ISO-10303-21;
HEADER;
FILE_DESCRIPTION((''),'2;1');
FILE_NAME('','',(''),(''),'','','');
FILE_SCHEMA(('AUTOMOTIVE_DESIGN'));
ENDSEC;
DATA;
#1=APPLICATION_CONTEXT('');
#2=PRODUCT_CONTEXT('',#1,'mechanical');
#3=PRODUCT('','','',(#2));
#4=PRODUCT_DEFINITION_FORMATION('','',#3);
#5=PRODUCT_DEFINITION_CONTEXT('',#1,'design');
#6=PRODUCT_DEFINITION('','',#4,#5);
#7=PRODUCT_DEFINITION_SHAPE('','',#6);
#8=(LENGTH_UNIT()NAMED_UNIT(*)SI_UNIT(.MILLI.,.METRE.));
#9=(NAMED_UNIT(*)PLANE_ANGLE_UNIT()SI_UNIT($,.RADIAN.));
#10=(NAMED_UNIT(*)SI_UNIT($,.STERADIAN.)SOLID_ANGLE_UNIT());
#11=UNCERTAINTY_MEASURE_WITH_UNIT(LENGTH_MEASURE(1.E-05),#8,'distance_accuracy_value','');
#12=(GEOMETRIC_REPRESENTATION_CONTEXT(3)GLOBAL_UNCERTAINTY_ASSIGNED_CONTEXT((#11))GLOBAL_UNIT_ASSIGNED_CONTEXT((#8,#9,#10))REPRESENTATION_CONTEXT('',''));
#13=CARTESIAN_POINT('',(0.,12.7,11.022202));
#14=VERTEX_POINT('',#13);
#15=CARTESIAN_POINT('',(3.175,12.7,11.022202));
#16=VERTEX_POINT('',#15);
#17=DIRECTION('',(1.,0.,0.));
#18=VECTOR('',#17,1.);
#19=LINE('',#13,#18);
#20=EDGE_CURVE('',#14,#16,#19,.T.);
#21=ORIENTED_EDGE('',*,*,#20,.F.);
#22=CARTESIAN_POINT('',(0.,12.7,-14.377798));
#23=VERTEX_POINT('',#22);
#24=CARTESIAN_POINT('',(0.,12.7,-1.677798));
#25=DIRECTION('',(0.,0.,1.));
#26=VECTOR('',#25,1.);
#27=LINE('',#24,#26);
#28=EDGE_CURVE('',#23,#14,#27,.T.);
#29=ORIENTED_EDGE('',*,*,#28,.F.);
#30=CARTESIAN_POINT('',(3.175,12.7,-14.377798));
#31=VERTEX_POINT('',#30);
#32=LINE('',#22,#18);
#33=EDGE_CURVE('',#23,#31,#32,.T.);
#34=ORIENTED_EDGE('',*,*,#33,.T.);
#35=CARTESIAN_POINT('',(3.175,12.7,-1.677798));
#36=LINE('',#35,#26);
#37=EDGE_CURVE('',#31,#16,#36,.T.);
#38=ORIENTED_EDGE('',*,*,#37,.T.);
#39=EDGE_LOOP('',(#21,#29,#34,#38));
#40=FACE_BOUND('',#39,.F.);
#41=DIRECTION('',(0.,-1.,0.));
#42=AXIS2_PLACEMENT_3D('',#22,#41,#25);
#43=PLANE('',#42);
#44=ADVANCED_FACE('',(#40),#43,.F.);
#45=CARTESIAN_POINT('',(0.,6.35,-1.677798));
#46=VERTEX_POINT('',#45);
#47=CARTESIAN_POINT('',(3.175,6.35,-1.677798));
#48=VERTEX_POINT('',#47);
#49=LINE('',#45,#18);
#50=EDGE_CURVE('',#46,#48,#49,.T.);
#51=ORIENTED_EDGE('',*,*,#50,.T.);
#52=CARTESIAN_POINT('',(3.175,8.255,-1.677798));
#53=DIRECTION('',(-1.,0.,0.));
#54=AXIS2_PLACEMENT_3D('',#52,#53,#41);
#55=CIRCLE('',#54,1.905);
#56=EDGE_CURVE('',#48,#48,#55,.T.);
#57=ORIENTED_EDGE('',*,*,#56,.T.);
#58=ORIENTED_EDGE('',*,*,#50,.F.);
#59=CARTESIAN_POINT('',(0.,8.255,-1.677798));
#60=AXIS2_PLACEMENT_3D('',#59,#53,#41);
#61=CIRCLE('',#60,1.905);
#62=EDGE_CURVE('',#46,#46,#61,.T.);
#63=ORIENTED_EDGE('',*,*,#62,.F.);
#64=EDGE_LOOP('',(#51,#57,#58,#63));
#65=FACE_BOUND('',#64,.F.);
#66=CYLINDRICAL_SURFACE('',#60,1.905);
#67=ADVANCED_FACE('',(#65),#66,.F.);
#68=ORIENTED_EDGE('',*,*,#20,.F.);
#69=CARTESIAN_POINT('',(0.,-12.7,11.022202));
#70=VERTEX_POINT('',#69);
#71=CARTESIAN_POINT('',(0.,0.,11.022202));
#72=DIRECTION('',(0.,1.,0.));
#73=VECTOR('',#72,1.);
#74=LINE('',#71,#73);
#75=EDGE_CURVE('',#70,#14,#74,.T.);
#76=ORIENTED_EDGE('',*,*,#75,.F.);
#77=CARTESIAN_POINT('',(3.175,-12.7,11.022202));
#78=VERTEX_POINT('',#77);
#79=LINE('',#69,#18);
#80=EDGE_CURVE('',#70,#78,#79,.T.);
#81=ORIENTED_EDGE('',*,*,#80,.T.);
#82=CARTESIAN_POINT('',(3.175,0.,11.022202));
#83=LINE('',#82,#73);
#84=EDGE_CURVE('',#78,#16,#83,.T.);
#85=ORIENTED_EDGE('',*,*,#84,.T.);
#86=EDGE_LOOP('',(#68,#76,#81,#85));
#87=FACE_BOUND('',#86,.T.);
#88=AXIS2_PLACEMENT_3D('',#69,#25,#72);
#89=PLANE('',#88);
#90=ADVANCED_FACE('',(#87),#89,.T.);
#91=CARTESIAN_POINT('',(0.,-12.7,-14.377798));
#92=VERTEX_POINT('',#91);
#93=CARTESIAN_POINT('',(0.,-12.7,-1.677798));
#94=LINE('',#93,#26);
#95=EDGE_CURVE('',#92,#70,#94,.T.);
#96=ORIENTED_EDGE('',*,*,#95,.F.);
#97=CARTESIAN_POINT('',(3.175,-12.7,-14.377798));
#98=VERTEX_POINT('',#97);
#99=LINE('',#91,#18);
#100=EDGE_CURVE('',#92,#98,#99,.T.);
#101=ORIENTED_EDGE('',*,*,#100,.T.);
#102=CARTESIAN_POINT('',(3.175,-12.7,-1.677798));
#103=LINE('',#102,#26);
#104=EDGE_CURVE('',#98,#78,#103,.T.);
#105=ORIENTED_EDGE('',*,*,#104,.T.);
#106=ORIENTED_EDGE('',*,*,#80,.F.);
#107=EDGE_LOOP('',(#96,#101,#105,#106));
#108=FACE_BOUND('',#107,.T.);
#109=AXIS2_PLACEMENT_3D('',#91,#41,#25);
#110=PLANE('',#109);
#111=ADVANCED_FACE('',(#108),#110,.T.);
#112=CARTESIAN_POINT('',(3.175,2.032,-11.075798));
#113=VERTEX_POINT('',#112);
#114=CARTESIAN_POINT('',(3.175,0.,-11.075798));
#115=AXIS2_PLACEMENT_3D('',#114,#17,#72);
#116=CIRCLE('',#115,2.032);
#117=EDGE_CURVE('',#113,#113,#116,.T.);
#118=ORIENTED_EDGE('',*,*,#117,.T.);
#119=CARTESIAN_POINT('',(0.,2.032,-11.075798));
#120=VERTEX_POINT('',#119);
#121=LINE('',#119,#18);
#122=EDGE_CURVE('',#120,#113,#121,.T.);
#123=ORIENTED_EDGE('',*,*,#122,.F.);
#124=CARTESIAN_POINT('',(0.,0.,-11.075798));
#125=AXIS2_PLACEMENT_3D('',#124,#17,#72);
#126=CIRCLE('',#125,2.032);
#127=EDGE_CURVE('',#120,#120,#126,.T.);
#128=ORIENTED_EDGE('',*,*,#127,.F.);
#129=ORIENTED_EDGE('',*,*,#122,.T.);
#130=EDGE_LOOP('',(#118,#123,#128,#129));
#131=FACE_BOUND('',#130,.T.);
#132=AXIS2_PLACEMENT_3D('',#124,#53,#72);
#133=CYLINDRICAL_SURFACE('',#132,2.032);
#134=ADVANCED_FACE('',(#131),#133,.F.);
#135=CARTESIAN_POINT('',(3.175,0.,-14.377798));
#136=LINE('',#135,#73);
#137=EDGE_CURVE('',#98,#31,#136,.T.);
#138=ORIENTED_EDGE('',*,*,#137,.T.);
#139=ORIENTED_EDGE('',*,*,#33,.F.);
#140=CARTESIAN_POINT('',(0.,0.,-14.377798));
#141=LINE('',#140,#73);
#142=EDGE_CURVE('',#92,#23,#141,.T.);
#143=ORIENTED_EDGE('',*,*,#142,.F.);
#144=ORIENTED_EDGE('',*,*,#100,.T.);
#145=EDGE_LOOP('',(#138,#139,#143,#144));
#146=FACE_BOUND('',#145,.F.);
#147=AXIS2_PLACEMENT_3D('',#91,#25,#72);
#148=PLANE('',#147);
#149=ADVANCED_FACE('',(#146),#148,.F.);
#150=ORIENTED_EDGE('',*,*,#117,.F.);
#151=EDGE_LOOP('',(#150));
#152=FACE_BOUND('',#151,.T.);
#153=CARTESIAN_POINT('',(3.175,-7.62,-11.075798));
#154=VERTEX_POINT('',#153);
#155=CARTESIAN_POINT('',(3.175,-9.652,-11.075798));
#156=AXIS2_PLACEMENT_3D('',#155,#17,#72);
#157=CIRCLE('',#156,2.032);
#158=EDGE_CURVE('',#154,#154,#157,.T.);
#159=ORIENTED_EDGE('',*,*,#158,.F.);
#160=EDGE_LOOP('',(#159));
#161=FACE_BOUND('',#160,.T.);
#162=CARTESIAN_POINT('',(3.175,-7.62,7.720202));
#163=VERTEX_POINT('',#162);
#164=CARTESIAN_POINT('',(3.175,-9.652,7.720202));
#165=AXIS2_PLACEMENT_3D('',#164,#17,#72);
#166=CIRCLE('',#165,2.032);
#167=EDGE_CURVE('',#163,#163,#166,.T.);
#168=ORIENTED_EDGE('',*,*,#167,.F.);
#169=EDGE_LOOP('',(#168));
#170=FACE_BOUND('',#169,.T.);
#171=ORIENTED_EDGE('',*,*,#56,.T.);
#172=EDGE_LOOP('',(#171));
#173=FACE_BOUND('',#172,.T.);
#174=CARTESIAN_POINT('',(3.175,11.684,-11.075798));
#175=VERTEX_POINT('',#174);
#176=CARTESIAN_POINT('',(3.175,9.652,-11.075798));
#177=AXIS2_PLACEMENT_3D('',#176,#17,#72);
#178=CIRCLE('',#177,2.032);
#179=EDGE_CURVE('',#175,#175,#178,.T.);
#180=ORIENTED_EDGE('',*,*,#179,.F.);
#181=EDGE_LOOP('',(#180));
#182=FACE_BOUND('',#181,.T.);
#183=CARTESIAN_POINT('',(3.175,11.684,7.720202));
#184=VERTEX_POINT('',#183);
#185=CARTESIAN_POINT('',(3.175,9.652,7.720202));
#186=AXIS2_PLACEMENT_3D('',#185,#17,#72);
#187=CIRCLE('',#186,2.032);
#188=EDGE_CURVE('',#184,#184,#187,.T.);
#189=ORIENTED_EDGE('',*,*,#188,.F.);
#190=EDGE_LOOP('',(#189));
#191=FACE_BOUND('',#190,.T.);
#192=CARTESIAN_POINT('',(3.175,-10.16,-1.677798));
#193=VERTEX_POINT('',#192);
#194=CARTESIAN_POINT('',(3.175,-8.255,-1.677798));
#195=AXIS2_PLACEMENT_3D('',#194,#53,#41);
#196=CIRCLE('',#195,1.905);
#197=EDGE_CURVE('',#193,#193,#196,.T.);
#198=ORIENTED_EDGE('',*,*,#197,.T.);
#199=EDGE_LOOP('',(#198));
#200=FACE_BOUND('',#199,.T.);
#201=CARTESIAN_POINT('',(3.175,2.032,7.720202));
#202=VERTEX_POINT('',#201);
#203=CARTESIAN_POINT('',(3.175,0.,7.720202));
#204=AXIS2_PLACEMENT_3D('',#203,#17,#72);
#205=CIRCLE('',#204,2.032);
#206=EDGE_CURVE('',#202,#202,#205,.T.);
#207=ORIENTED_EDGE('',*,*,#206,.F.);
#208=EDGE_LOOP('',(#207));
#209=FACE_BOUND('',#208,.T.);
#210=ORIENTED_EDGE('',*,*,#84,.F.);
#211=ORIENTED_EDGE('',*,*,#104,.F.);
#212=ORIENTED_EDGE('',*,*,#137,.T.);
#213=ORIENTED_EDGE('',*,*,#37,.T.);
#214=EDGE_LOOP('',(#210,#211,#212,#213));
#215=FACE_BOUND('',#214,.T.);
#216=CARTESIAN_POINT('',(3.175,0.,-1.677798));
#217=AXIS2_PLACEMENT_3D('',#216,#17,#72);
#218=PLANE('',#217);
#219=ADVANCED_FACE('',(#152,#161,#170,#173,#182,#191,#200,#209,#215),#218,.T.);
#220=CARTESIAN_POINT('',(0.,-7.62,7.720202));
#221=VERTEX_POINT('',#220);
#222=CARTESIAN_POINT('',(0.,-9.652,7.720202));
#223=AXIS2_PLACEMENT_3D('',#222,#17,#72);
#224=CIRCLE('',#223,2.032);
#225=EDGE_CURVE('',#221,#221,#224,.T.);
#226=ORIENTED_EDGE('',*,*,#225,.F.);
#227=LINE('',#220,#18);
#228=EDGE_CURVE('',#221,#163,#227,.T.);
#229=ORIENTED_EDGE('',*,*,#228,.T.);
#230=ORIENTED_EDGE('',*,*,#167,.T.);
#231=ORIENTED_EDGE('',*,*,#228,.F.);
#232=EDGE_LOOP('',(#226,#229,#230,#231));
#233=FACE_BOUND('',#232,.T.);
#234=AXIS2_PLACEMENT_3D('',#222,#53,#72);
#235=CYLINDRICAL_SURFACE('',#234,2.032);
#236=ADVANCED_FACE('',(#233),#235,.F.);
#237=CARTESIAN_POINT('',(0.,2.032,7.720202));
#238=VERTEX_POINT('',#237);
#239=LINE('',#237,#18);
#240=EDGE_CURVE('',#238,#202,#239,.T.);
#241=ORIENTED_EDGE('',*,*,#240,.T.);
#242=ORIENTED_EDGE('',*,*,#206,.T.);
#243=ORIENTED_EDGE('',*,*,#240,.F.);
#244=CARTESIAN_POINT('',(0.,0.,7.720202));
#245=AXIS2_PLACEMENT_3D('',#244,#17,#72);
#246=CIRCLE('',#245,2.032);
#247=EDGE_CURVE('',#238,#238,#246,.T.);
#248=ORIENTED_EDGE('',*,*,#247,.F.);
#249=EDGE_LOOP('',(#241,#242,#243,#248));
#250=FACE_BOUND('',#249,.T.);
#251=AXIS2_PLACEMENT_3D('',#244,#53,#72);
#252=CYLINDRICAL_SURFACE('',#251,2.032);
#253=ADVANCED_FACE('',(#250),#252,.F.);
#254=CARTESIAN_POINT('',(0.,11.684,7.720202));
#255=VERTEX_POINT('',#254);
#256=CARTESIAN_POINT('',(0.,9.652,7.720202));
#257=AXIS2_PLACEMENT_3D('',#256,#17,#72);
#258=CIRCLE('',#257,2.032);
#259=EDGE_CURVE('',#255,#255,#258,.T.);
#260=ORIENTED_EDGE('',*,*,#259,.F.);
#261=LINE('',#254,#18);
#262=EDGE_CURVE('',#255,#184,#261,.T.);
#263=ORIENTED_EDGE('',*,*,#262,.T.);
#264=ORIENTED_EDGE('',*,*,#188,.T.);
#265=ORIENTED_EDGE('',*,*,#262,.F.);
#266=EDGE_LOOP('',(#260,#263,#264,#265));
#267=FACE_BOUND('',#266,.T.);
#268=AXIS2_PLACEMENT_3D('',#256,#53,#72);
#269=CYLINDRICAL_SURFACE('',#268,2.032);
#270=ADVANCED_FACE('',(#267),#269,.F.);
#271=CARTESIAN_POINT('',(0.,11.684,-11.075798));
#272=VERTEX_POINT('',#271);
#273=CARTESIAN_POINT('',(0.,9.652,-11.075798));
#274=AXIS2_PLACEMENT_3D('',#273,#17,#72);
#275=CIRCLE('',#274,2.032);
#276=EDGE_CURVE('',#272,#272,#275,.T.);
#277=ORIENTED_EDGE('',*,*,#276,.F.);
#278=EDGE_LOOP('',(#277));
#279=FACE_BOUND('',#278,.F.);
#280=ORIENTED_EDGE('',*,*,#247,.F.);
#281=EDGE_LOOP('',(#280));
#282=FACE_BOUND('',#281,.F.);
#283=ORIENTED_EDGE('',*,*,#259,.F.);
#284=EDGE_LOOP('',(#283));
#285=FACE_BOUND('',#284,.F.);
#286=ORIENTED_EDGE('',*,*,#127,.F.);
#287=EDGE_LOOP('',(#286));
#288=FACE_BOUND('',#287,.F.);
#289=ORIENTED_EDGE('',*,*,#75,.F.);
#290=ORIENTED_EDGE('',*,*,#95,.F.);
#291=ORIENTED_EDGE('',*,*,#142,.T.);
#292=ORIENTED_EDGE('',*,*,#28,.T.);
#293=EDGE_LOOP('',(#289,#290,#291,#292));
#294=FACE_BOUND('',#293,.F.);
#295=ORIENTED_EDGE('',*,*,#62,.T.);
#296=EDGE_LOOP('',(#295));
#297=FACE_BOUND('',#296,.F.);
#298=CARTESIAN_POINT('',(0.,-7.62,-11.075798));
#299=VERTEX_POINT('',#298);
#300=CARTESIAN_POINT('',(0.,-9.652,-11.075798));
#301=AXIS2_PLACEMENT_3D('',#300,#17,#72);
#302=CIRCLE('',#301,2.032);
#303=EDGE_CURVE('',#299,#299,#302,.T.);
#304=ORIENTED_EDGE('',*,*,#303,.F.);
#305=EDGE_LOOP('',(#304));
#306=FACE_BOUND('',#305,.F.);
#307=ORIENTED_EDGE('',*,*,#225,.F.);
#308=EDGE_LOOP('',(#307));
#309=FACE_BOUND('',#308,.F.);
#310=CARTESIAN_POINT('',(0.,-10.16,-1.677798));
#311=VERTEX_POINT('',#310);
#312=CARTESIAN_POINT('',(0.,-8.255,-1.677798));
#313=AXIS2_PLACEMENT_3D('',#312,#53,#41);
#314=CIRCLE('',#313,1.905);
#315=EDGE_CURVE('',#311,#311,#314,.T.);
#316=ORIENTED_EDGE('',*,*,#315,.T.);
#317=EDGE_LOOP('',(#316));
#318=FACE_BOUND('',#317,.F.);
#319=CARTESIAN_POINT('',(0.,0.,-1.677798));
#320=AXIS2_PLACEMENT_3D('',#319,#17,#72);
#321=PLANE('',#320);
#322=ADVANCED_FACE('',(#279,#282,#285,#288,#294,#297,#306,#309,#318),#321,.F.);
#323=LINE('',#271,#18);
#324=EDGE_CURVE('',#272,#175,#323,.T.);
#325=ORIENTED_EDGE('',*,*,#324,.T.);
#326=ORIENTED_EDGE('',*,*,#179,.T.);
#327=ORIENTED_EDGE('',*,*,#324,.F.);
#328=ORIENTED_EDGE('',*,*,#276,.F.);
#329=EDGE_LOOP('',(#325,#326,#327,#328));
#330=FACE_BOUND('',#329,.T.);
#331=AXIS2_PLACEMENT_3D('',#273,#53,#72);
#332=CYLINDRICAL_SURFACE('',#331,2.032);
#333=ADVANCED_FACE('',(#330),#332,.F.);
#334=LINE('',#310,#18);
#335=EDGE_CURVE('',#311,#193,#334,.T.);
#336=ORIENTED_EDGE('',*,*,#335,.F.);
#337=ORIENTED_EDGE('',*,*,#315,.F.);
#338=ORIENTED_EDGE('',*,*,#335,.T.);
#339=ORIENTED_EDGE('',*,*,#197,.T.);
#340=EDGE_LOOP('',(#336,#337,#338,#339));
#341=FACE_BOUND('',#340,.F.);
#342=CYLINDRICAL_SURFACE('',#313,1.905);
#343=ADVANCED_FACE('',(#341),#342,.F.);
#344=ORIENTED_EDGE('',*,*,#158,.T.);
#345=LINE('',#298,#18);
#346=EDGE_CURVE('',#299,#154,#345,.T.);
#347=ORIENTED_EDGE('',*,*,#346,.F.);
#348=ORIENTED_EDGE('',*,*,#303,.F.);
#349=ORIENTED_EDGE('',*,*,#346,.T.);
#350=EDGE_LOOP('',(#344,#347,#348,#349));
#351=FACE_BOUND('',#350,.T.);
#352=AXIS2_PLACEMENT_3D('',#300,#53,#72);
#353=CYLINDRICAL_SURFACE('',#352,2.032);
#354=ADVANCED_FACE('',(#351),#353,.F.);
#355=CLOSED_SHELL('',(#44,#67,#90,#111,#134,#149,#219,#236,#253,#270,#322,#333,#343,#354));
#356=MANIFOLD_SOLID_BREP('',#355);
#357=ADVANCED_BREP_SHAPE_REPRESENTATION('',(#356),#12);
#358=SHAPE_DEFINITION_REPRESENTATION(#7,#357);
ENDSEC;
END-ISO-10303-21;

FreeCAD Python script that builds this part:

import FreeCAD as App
import Part
import Sketcher
Q = App.Units.Quantity

doc = App.newDocument("Part")
body = doc.addObject("PartDesign::Body", "Body")

sketch1 = body.newObject("Sketcher::SketchObject", "Sketch")
sketch1.AttachmentSupport = (doc.getObject("YZ_Plane"), [""])
sketch1.MapMode = "FlatFace"
sketch1.addGeometry([
    Part.LineSegment(App.Vector(-12.7, 11, 0), App.Vector(-12.7, -14.4, 0)),
    Part.LineSegment(App.Vector(-12.7, -14.4, 0), App.Vector(12.7, -14.4, 0)),
    Part.LineSegment(App.Vector(12.7, -14.4, 0), App.Vector(12.7, 11, 0)),
    Part.LineSegment(App.Vector(12.7, 11, 0), App.Vector(-12.7, 11, 0)),
    Part.Circle(App.Vector(-9.7, -11.1, 0), App.Vector(0, 0, 1), 2),
    Part.Circle(App.Vector(0, -11.1, 0), App.Vector(0, 0, 1), 2),
    Part.Circle(App.Vector(9.7, -11.1, 0), App.Vector(0, 0, 1), 2),
    Part.Circle(App.Vector(-9.7, 7.7, 0), App.Vector(0, 0, 1), 2),
    Part.Circle(App.Vector(0, 7.7, 0), App.Vector(0, 0, 1), 2),
    Part.Circle(App.Vector(9.7, 7.7, 0), App.Vector(0, 0, 1), 2),
], False)
sketch1.addConstraint([
    Sketcher.Constraint("Coincident", 0, 2, 1, 1),
    Sketcher.Constraint("Coincident", 1, 2, 2, 1),
    Sketcher.Constraint("Coincident", 2, 2, 3, 1),
    Sketcher.Constraint("Coincident", 3, 2, 0, 1),
    Sketcher.Constraint("Vertical", 0),
    Sketcher.Constraint("Horizontal", 1),
    Sketcher.Constraint("Vertical", 2),
    Sketcher.Constraint("Horizontal", 3),
    Sketcher.Constraint("Equal", 4, 5),
    Sketcher.Constraint("Equal", 5, 6),
    Sketcher.Constraint("Equal", 6, 7),
    Sketcher.Constraint("Equal", 7, 8),
    Sketcher.Constraint("Equal", 8, 9),
    Sketcher.Constraint("Symmetric", 4, 3, 6, 3, -2),
    Sketcher.Constraint("Symmetric", 7, 3, 9, 3, -2),
    Sketcher.Constraint("PointOnObject", 5, 3, -2),
    Sketcher.Constraint("PointOnObject", 8, 3, -2),
    Sketcher.Constraint("Horizontal", 4, 3, 5, 3),
    Sketcher.Constraint("Horizontal", 7, 3, 8, 3),
    Sketcher.Constraint("Vertical", 4, 3, 7, 3),
    Sketcher.Constraint("Equal", 3, 0),
    Sketcher.Constraint("Diameter", 4, Q("0.16 in")),
    Sketcher.Constraint("DistanceX", 1, 1, 1, 2, Q("1 in")),
    Sketcher.Constraint("DistanceX", 0, 2, -1, 1, Q("0.5 in")),
    Sketcher.Constraint("DistanceX", 4, 3, -1, 1, Q("0.38 in")),
    Sketcher.Constraint("DistanceY", 4, 3, 7, 3, Q("0.74 in")),
    Sketcher.Constraint("DistanceY", 0, 2, 4, 3, Q("0.13 in")),
    Sketcher.Constraint("DistanceY", 4, 3, -1, 1, Q("11.075798 mm")),
])
pad1 = body.newObject("PartDesign::Pad", "Pad")
pad1.Profile = sketch1
pad1.Length = Q("0.125 in")

sketch2 = body.newObject("Sketcher::SketchObject", "Sketch001")
sketch2.AttachmentSupport = (doc.getObject("YZ_Plane"), [""])
sketch2.MapMode = "FlatFace"
sketch2.addGeometry([
    Part.Circle(App.Vector(-8.3, -1.7, 0), App.Vector(0, 0, 1), 1.9),
    Part.Circle(App.Vector(8.3, -1.7, 0), App.Vector(0, 0, 1), 1.9),
], False)
sketch2.addConstraint([
    Sketcher.Constraint("Equal", 0, 1),
    Sketcher.Constraint("Symmetric", 0, 3, 1, 3, -2),
    Sketcher.Constraint("Diameter", 0, Q("0.15 in")),
    Sketcher.Constraint("DistanceX", 0, 3, 1, 3, Q("0.65 in")),
    Sketcher.Constraint("DistanceY", 0, 3, -1, 1, Q("1.677798 mm")),
])
pocket1 = body.newObject("PartDesign::Pocket", "Pocket")
pocket1.Profile = sketch2
pocket1.Length = Q("1 in")
pocket1.Reversed = True

doc.recompute()
